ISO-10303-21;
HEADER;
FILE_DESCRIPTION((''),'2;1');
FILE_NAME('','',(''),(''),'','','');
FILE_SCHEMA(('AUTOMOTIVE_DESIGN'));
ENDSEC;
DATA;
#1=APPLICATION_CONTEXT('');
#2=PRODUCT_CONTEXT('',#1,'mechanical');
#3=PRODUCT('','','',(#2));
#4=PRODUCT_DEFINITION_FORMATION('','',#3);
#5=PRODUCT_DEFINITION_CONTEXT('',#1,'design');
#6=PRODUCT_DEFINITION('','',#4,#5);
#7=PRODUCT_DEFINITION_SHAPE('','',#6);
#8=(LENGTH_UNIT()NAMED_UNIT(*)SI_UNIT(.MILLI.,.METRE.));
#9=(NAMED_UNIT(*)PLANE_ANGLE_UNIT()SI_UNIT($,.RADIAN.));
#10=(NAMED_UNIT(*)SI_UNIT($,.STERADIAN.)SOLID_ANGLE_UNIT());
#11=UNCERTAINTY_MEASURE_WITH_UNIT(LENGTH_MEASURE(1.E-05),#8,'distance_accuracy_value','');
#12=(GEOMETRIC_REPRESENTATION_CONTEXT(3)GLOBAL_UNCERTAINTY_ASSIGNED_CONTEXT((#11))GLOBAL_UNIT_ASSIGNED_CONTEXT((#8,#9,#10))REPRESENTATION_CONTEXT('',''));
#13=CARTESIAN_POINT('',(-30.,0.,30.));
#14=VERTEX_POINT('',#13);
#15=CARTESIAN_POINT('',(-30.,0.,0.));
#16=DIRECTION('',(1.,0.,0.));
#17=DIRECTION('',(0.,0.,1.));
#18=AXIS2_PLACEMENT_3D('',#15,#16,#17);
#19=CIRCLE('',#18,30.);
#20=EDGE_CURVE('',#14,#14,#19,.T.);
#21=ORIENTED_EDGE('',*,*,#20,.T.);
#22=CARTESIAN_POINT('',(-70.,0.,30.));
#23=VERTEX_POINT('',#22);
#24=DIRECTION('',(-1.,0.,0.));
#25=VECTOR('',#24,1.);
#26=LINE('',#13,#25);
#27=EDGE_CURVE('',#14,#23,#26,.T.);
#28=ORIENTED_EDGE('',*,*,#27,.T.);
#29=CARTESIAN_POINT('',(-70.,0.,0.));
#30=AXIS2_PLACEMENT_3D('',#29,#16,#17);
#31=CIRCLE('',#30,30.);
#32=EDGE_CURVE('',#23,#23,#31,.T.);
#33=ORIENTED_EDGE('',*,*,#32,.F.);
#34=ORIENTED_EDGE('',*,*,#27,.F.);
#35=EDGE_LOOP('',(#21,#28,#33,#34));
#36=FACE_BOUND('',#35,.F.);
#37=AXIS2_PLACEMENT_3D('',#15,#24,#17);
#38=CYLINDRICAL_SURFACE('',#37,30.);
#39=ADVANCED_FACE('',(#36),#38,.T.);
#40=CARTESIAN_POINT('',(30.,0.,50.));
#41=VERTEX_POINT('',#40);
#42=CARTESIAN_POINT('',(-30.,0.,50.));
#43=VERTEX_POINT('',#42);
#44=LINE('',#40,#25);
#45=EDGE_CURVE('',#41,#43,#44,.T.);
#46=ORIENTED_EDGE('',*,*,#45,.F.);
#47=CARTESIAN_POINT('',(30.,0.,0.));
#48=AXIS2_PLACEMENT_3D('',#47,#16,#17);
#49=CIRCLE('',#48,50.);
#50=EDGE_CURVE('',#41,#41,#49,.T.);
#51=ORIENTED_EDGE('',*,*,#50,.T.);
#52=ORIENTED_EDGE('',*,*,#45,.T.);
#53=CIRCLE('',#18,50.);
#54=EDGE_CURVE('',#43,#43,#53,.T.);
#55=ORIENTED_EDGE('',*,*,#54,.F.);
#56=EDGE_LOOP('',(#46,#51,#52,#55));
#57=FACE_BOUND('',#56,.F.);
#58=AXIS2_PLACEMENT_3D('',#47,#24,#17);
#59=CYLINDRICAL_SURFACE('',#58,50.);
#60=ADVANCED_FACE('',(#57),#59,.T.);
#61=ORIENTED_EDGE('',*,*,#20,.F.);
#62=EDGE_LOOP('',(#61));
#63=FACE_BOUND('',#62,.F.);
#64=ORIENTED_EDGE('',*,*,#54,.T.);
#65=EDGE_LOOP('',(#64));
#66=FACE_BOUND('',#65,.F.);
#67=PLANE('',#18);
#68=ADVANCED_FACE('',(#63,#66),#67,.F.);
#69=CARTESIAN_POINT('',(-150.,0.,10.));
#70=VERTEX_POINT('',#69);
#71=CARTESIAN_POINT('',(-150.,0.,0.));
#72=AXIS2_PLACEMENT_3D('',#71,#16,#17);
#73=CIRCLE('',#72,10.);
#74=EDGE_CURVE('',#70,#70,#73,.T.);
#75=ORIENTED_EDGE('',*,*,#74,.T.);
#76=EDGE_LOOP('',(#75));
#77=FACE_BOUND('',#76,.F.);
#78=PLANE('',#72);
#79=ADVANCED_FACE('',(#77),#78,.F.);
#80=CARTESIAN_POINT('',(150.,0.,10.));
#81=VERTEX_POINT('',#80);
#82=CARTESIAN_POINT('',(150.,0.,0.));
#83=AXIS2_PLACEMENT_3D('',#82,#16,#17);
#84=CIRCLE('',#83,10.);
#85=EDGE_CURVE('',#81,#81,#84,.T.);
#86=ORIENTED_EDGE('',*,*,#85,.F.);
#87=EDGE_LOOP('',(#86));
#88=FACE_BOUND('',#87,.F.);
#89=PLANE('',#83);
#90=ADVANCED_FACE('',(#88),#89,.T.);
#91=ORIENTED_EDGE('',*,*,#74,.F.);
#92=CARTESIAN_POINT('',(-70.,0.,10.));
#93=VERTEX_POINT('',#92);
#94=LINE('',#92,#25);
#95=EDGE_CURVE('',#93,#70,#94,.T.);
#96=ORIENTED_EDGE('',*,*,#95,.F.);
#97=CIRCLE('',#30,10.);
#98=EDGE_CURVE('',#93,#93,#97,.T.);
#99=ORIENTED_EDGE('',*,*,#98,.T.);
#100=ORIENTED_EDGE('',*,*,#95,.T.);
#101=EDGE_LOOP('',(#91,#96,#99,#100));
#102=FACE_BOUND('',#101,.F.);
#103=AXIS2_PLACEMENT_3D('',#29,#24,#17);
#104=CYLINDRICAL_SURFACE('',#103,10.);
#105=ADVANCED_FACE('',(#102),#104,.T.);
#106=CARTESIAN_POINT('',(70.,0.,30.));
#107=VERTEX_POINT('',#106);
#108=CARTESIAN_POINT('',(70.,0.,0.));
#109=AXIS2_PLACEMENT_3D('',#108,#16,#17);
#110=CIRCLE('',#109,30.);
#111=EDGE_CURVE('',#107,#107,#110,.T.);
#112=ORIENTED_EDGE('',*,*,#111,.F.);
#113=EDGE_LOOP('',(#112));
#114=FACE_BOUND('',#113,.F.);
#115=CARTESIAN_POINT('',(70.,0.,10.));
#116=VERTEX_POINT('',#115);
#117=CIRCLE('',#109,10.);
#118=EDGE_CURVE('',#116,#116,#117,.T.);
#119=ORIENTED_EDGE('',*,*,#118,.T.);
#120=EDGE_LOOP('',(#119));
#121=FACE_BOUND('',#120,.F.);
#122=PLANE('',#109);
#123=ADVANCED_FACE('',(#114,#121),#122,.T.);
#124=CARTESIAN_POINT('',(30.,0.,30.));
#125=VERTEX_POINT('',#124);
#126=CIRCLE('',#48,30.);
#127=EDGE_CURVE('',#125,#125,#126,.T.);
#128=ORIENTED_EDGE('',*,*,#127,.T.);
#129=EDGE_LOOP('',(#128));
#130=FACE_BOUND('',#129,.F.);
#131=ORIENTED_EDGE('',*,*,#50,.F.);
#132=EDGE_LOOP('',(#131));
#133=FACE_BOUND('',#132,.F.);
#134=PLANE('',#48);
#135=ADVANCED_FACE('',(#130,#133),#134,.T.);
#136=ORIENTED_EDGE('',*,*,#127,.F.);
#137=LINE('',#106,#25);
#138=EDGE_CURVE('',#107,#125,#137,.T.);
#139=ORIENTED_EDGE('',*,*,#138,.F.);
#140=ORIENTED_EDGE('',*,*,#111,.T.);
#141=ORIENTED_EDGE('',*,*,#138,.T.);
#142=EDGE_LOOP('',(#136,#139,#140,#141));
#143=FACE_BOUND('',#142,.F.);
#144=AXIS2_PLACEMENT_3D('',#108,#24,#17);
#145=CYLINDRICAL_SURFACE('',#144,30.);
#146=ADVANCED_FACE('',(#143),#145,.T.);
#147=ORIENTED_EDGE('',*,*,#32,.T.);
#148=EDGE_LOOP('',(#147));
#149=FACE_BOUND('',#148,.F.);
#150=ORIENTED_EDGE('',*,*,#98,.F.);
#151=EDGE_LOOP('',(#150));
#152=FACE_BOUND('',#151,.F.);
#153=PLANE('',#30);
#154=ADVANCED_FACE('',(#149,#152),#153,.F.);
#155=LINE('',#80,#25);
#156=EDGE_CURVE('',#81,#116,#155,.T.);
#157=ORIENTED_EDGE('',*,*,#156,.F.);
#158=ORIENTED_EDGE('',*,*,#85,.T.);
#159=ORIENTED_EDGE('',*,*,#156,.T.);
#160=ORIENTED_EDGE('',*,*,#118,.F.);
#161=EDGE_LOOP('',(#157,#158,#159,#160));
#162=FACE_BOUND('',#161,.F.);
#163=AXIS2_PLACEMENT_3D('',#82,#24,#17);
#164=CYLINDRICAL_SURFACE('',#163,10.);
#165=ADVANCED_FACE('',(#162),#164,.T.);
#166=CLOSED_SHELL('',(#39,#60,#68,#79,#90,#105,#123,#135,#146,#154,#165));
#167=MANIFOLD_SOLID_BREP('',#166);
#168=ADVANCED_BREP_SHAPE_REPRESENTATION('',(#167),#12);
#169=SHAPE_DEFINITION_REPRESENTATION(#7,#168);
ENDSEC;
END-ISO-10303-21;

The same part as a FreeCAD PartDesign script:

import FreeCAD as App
import Part
import Sketcher

V = App.Vector


def add_polygon(sketch, points):
    """Adds a closed chain of lines whose ends are joined by coincident constraints."""
    first, n = sketch.GeometryCount, len(points)
    for a, b in zip(points, points[1:] + points[:1]):
        sketch.addGeometry(Part.LineSegment(App.Vector(*a, 0), App.Vector(*b, 0)), False)
    for i in range(n):
        sketch.addConstraint(Sketcher.Constraint("Coincident", first + i, 2, first + (i + 1) % n, 1))

doc = App.newDocument("Part")
body = doc.addObject("PartDesign::Body", "Body")

sketch1 = body.newObject("Sketcher::SketchObject", "Sketch")
sketch1.AttachmentSupport = (doc.getObject("XZ_Plane"), [""])
sketch1.MapMode = "FlatFace"
add_polygon(sketch1, [(30, -50), (-30, -50), (-30, -30), (-70, -30), (-70, -10), (-150, -10), (-150, 0), (150, 0), (150, -10), (70, -10), (70, -30), (30, -30)])
sketch1.addConstraint(Sketcher.Constraint("Horizontal", 0))
sketch1.addConstraint(Sketcher.Constraint("Vertical", 1))
sketch1.addConstraint(Sketcher.Constraint("Horizontal", 2))
sketch1.addConstraint(Sketcher.Constraint("Vertical", 3))
sketch1.addConstraint(Sketcher.Constraint("Horizontal", 4))
sketch1.addConstraint(Sketcher.Constraint("Vertical", 5))
sketch1.addConstraint(Sketcher.Constraint("Horizontal", 6))
sketch1.addConstraint(Sketcher.Constraint("Vertical", 7))
sketch1.addConstraint(Sketcher.Constraint("Horizontal", 8))
sketch1.addConstraint(Sketcher.Constraint("Vertical", 9))
sketch1.addConstraint(Sketcher.Constraint("Horizontal", 10))
sketch1.addConstraint(Sketcher.Constraint("Vertical", 11))
sketch1.addConstraint(Sketcher.Constraint("Symmetric", 5, 2, 6, 2, -1, 1))
sketch1.addConstraint(Sketcher.Constraint("Symmetric", 3, 2, 8, 2, -2))
sketch1.addConstraint(Sketcher.Constraint("Symmetric", 1, 2, 10, 2, -2))
sketch1.addConstraint(Sketcher.Constraint("Equal", 1, 3))
sketch1.addConstraint(Sketcher.Constraint("DistanceX", 0, 2, 0, 1, 60.0))
sketch1.addConstraint(Sketcher.Constraint("DistanceX", 2, 2, 2, 1, 40.0))
sketch1.addConstraint(Sketcher.Constraint("DistanceX", 4, 2, 4, 1, 80.0))
sketch1.addConstraint(Sketcher.Constraint("DistanceY", 1, 1, 1, 2, 20.0))
sketch1.addConstraint(Sketcher.Constraint("DistanceY", 5, 1, 5, 2, 10.0))
revolution = body.newObject("PartDesign::Revolution", "Revolution")
revolution.Profile = sketch1
revolution.ReferenceAxis = (sketch1, ["H_Axis"])
revolution.Angle = 360

doc.recompute()
